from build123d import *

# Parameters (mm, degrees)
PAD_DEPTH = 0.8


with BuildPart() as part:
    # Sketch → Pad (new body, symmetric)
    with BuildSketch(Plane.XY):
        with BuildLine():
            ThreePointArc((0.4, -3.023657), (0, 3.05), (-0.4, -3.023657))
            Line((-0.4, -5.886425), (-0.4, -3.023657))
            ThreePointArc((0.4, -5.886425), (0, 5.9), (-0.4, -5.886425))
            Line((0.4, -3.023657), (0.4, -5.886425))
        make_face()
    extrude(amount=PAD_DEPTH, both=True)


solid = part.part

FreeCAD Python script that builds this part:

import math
import FreeCAD as App
import Part
import Sketcher
from FreeCAD import Vector

doc = App.newDocument("Part")
body = doc.addObject("PartDesign::Body", "Body")

sketch1 = body.newObject("Sketcher::SketchObject", "Sketch")
sketch1.AttachmentSupport = (doc.getObject("XY_Plane"), [""])
sketch1.MapMode = "FlatFace"
sketch1.addGeometry([
    Part.ArcOfCircle(Part.Circle(Vector(0, 0, 0), Vector(0, 0, 1), 3.05), math.radians(-82.464091), math.radians(262.464091)),
    Part.LineSegment(Vector(0.4, -3.023657, 0), Vector(0.4, -5.886425, 0)),
    Part.ArcOfCircle(Part.Circle(Vector(0, 0, 0), Vector(0, 0, 1), 5.9), math.radians(-86.112558), math.radians(266.112558)),
    Part.LineSegment(Vector(-0.4, -5.886425, 0), Vector(-0.4, -3.023657, 0)),
], False)
sketch1.addConstraint([
    Sketcher.Constraint("Coincident", 0, 1, 1, 1),
    Sketcher.Constraint("Coincident", 1, 2, 2, 1),
    Sketcher.Constraint("Coincident", 2, 2, 3, 1),
    Sketcher.Constraint("Coincident", 3, 2, 0, 2),
    Sketcher.Constraint("Vertical", 1),
    Sketcher.Constraint("Vertical", 3),
    Sketcher.Constraint("Coincident", 0, 3, -1, 1),
    Sketcher.Constraint("Coincident", 2, 3, -1, 1),
    Sketcher.Constraint("Horizontal", 1, 2, 2, 2),
    Sketcher.Constraint("Radius", 2, 5.9),
    Sketcher.Constraint("Radius", 0, 3.05),
    Sketcher.Constraint("DistanceX", -1, 1, 0, 1, 0.4),
])
pad1 = body.newObject("PartDesign::Pad", "Pad")
pad1.Profile = sketch1
pad1.Length = 1.6
pad1.Midplane = True

doc.recompute()
